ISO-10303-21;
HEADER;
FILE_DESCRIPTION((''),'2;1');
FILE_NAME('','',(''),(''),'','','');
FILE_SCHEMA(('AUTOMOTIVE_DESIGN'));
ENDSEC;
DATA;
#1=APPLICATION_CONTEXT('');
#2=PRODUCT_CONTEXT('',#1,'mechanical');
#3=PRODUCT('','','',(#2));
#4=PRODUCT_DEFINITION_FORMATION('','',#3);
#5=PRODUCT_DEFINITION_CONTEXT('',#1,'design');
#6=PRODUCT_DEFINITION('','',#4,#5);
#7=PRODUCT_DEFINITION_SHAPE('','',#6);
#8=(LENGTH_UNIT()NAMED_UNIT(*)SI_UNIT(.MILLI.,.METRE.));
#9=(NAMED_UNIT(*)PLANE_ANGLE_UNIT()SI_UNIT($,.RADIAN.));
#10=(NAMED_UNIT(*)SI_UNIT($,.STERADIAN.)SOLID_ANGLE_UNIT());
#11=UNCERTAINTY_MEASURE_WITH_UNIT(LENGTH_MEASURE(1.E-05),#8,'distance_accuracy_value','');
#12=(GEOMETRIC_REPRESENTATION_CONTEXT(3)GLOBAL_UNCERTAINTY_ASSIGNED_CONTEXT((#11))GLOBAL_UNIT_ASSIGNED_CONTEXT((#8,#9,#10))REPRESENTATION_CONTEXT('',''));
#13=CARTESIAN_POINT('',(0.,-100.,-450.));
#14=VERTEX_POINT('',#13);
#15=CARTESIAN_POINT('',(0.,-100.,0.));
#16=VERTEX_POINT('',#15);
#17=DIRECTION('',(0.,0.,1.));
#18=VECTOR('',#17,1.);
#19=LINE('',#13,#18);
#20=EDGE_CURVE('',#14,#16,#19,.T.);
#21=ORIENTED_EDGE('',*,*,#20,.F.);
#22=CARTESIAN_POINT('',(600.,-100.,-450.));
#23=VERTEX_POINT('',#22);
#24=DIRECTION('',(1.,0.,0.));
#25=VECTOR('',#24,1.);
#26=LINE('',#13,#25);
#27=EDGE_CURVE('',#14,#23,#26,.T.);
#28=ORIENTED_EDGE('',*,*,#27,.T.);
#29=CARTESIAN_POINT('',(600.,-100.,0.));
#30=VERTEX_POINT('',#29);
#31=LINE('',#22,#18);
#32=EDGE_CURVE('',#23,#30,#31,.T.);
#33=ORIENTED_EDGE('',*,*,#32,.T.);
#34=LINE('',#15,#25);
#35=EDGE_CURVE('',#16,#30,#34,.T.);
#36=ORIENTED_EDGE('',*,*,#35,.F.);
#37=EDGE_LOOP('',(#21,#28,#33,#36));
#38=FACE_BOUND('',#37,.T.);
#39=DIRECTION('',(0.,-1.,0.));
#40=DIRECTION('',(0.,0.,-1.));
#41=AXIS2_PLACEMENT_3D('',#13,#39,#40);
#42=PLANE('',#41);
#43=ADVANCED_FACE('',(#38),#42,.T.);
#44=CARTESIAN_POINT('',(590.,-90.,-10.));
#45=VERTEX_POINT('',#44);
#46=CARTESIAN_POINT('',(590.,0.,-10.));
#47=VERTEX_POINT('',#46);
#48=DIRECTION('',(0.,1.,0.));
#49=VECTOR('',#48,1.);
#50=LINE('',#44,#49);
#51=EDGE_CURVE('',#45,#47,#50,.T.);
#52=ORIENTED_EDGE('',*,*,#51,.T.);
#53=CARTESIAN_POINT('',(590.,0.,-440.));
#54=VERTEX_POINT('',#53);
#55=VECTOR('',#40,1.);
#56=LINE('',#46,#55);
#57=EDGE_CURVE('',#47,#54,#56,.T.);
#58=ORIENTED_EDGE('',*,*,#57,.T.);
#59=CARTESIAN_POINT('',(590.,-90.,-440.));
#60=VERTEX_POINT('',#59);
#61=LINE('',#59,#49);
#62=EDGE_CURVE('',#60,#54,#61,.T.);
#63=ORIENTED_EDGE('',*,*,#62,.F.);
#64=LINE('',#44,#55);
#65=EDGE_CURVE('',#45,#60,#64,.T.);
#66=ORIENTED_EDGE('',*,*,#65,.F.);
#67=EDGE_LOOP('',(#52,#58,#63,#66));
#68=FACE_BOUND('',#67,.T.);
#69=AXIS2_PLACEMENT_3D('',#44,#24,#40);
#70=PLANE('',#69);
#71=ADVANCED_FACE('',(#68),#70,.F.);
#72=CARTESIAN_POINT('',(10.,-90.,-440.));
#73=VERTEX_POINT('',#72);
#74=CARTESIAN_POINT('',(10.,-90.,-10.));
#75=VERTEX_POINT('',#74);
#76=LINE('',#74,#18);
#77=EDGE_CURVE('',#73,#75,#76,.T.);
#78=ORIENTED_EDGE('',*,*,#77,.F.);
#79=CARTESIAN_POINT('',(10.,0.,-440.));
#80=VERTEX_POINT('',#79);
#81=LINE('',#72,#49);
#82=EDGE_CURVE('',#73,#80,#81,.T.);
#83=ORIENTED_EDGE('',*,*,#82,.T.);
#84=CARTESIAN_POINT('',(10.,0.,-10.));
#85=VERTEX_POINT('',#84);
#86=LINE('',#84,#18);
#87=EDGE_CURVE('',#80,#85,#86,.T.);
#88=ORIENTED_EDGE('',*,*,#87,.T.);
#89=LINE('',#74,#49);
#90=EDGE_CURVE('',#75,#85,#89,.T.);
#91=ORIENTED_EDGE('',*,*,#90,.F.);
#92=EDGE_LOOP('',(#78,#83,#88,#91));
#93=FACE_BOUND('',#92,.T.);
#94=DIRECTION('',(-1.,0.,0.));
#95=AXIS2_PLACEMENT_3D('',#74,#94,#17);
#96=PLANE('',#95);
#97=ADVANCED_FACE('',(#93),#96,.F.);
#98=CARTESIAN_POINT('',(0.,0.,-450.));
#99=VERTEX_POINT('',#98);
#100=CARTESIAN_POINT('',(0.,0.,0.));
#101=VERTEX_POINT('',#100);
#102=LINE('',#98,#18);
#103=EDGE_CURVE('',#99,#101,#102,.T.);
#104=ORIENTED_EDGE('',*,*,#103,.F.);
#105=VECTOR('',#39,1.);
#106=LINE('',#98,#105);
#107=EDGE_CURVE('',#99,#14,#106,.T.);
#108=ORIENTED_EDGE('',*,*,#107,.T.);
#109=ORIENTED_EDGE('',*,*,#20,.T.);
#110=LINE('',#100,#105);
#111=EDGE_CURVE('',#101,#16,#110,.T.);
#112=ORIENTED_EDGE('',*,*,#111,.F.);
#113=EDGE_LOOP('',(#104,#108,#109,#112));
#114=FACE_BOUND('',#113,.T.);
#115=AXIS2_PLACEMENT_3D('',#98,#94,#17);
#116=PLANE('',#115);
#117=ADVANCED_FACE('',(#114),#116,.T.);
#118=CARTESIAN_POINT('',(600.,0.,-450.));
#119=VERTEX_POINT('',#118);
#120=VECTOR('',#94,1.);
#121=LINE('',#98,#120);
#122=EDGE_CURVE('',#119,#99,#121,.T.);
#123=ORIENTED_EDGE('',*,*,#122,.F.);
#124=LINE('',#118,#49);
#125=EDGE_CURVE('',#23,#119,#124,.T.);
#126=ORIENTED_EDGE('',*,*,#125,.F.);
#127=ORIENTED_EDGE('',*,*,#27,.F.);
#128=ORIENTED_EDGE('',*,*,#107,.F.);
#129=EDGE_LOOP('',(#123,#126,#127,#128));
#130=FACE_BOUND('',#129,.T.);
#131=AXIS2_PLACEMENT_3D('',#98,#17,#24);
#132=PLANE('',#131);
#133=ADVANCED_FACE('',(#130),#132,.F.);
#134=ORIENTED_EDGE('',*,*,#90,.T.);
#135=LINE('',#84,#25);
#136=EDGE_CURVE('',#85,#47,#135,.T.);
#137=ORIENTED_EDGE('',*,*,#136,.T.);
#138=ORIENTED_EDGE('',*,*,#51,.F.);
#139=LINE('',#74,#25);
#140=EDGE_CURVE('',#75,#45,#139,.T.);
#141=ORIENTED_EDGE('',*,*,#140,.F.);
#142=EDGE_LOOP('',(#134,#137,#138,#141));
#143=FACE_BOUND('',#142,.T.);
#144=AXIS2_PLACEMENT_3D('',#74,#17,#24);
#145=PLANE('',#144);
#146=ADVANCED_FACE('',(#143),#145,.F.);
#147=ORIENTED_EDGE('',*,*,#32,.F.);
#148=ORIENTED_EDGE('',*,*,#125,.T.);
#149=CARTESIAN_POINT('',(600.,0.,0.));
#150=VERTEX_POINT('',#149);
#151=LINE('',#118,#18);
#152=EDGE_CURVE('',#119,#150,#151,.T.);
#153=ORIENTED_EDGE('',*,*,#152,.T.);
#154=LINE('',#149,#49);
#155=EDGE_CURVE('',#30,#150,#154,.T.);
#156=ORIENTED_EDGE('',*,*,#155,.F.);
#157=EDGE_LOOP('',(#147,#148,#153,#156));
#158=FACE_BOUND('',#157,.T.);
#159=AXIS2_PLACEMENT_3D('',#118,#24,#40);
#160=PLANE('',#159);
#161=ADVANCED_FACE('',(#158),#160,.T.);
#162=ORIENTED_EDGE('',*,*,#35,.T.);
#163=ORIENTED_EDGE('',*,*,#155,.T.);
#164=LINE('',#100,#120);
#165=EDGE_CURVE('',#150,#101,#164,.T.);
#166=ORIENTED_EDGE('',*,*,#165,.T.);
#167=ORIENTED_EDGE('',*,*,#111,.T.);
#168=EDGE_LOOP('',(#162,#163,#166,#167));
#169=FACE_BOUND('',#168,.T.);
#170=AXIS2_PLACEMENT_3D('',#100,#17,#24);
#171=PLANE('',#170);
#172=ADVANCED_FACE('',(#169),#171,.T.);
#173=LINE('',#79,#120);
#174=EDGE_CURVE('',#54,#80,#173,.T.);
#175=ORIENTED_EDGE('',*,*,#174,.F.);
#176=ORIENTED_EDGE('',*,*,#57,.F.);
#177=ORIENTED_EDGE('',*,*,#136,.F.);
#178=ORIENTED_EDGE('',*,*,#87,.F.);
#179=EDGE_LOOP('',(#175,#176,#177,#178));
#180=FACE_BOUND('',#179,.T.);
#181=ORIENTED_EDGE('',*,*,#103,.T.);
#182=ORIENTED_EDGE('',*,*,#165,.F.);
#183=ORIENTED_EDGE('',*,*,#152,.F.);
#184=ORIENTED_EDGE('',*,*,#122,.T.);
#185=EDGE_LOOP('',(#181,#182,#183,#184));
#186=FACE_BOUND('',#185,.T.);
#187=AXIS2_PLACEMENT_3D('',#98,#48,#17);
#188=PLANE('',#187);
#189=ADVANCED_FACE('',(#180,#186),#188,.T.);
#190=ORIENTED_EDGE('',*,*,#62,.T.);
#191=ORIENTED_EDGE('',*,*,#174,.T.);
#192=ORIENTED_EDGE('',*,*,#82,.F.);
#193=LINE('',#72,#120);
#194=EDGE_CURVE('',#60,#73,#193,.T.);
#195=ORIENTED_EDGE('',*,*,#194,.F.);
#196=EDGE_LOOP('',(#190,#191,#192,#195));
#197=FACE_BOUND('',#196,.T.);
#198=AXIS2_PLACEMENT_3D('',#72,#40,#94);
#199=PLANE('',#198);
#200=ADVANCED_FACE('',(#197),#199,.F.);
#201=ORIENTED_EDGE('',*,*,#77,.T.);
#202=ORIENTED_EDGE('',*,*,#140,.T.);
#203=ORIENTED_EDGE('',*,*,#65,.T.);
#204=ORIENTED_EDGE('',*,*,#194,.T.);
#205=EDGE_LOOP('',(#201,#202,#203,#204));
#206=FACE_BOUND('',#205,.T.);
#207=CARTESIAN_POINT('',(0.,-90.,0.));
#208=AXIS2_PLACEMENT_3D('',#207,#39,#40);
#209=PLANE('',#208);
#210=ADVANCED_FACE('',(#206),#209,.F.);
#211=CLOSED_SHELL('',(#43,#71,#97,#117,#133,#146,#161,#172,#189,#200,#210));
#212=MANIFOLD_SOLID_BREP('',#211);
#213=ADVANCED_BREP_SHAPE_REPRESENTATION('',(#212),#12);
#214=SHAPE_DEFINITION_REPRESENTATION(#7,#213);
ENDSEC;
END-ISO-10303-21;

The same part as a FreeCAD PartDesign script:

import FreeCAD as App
import Part
import Sketcher

V = App.Vector

doc = App.newDocument("Part")
body = doc.addObject("PartDesign::Body", "Body")

# Sketch on XY plane
sketch1 = body.newObject("Sketcher::SketchObject", "Sketch")
sketch1.AttachmentSupport = (doc.getObject("XY_Plane"), [""])
sketch1.MapMode = "FlatFace"
sketch1.addGeometry(Part.LineSegment(V(0, 0, 0), V(0, -100, 0)), False)
sketch1.addGeometry(Part.LineSegment(V(0, -100, 0), V(600, -100, 0)), False)
sketch1.addGeometry(Part.LineSegment(V(600, -100, 0), V(600, 0, 0)), False)
sketch1.addGeometry(Part.LineSegment(V(600, 0, 0), V(0, 0, 0)), False)
sketch1.addConstraint(Sketcher.Constraint("Coincident", 0, 2, 1, 1))
sketch1.addConstraint(Sketcher.Constraint("Coincident", 1, 2, 2, 1))
sketch1.addConstraint(Sketcher.Constraint("Coincident", 2, 2, 3, 1))
sketch1.addConstraint(Sketcher.Constraint("Coincident", 3, 2, 0, 1))
sketch1.addConstraint(Sketcher.Constraint("Vertical", 0))
sketch1.addConstraint(Sketcher.Constraint("Horizontal", 1))
sketch1.addConstraint(Sketcher.Constraint("Vertical", 2))
sketch1.addConstraint(Sketcher.Constraint("Horizontal", 3))
sketch1.addConstraint(Sketcher.Constraint("Coincident", 3, 2, -1, 1))
sketch1.addConstraint(Sketcher.Constraint("DistanceX", 1, 1, 1, 2, 600.0))
sketch1.addConstraint(Sketcher.Constraint("DistanceY", 0, 2, 0, 1, 100.0))
pad1 = body.newObject("PartDesign::Pad", "Pad")
pad1.Profile = sketch1
pad1.Length = 450
pad1.Reversed = True

# Sketch on XZ plane
sketch2 = body.newObject("Sketcher::SketchObject", "Sketch001")
sketch2.AttachmentSupport = (doc.getObject("XZ_Plane"), [""])
sketch2.MapMode = "FlatFace"
sketch2.addGeometry(Part.LineSegment(V(10, -440, 0), V(10, -10, 0)), False)
sketch2.addGeometry(Part.LineSegment(V(10, -10, 0), V(590, -10, 0)), False)
sketch2.addGeometry(Part.LineSegment(V(590, -10, 0), V(590, -440, 0)), False)
sketch2.addGeometry(Part.LineSegment(V(590, -440, 0), V(10, -440, 0)), False)
sketch2.addConstraint(Sketcher.Constraint("Coincident", 0, 2, 1, 1))
sketch2.addConstraint(Sketcher.Constraint("Coincident", 1, 2, 2, 1))
sketch2.addConstraint(Sketcher.Constraint("Coincident", 2, 2, 3, 1))
sketch2.addConstraint(Sketcher.Constraint("Coincident", 3, 2, 0, 1))
sketch2.addConstraint(Sketcher.Constraint("Vertical", 0))
sketch2.addConstraint(Sketcher.Constraint("Horizontal", 1))
sketch2.addConstraint(Sketcher.Constraint("Vertical", 2))
sketch2.addConstraint(Sketcher.Constraint("Horizontal", 3))
sketch2.addConstraint(Sketcher.Constraint("DistanceX", 1, 1, 1, 2, 580.0))
sketch2.addConstraint(Sketcher.Constraint("DistanceY", 0, 1, 0, 2, 430.0))
sketch2.addConstraint(Sketcher.Constraint("DistanceX", -1, 1, 0, 2, 10.0))
sketch2.addConstraint(Sketcher.Constraint("DistanceY", 0, 2, -1, 1, 10.0))
pocket1 = body.newObject("PartDesign::Pocket", "Pocket")
pocket1.Profile = sketch2
pocket1.Length = 90
pocket1.Reversed = True

doc.recompute()
